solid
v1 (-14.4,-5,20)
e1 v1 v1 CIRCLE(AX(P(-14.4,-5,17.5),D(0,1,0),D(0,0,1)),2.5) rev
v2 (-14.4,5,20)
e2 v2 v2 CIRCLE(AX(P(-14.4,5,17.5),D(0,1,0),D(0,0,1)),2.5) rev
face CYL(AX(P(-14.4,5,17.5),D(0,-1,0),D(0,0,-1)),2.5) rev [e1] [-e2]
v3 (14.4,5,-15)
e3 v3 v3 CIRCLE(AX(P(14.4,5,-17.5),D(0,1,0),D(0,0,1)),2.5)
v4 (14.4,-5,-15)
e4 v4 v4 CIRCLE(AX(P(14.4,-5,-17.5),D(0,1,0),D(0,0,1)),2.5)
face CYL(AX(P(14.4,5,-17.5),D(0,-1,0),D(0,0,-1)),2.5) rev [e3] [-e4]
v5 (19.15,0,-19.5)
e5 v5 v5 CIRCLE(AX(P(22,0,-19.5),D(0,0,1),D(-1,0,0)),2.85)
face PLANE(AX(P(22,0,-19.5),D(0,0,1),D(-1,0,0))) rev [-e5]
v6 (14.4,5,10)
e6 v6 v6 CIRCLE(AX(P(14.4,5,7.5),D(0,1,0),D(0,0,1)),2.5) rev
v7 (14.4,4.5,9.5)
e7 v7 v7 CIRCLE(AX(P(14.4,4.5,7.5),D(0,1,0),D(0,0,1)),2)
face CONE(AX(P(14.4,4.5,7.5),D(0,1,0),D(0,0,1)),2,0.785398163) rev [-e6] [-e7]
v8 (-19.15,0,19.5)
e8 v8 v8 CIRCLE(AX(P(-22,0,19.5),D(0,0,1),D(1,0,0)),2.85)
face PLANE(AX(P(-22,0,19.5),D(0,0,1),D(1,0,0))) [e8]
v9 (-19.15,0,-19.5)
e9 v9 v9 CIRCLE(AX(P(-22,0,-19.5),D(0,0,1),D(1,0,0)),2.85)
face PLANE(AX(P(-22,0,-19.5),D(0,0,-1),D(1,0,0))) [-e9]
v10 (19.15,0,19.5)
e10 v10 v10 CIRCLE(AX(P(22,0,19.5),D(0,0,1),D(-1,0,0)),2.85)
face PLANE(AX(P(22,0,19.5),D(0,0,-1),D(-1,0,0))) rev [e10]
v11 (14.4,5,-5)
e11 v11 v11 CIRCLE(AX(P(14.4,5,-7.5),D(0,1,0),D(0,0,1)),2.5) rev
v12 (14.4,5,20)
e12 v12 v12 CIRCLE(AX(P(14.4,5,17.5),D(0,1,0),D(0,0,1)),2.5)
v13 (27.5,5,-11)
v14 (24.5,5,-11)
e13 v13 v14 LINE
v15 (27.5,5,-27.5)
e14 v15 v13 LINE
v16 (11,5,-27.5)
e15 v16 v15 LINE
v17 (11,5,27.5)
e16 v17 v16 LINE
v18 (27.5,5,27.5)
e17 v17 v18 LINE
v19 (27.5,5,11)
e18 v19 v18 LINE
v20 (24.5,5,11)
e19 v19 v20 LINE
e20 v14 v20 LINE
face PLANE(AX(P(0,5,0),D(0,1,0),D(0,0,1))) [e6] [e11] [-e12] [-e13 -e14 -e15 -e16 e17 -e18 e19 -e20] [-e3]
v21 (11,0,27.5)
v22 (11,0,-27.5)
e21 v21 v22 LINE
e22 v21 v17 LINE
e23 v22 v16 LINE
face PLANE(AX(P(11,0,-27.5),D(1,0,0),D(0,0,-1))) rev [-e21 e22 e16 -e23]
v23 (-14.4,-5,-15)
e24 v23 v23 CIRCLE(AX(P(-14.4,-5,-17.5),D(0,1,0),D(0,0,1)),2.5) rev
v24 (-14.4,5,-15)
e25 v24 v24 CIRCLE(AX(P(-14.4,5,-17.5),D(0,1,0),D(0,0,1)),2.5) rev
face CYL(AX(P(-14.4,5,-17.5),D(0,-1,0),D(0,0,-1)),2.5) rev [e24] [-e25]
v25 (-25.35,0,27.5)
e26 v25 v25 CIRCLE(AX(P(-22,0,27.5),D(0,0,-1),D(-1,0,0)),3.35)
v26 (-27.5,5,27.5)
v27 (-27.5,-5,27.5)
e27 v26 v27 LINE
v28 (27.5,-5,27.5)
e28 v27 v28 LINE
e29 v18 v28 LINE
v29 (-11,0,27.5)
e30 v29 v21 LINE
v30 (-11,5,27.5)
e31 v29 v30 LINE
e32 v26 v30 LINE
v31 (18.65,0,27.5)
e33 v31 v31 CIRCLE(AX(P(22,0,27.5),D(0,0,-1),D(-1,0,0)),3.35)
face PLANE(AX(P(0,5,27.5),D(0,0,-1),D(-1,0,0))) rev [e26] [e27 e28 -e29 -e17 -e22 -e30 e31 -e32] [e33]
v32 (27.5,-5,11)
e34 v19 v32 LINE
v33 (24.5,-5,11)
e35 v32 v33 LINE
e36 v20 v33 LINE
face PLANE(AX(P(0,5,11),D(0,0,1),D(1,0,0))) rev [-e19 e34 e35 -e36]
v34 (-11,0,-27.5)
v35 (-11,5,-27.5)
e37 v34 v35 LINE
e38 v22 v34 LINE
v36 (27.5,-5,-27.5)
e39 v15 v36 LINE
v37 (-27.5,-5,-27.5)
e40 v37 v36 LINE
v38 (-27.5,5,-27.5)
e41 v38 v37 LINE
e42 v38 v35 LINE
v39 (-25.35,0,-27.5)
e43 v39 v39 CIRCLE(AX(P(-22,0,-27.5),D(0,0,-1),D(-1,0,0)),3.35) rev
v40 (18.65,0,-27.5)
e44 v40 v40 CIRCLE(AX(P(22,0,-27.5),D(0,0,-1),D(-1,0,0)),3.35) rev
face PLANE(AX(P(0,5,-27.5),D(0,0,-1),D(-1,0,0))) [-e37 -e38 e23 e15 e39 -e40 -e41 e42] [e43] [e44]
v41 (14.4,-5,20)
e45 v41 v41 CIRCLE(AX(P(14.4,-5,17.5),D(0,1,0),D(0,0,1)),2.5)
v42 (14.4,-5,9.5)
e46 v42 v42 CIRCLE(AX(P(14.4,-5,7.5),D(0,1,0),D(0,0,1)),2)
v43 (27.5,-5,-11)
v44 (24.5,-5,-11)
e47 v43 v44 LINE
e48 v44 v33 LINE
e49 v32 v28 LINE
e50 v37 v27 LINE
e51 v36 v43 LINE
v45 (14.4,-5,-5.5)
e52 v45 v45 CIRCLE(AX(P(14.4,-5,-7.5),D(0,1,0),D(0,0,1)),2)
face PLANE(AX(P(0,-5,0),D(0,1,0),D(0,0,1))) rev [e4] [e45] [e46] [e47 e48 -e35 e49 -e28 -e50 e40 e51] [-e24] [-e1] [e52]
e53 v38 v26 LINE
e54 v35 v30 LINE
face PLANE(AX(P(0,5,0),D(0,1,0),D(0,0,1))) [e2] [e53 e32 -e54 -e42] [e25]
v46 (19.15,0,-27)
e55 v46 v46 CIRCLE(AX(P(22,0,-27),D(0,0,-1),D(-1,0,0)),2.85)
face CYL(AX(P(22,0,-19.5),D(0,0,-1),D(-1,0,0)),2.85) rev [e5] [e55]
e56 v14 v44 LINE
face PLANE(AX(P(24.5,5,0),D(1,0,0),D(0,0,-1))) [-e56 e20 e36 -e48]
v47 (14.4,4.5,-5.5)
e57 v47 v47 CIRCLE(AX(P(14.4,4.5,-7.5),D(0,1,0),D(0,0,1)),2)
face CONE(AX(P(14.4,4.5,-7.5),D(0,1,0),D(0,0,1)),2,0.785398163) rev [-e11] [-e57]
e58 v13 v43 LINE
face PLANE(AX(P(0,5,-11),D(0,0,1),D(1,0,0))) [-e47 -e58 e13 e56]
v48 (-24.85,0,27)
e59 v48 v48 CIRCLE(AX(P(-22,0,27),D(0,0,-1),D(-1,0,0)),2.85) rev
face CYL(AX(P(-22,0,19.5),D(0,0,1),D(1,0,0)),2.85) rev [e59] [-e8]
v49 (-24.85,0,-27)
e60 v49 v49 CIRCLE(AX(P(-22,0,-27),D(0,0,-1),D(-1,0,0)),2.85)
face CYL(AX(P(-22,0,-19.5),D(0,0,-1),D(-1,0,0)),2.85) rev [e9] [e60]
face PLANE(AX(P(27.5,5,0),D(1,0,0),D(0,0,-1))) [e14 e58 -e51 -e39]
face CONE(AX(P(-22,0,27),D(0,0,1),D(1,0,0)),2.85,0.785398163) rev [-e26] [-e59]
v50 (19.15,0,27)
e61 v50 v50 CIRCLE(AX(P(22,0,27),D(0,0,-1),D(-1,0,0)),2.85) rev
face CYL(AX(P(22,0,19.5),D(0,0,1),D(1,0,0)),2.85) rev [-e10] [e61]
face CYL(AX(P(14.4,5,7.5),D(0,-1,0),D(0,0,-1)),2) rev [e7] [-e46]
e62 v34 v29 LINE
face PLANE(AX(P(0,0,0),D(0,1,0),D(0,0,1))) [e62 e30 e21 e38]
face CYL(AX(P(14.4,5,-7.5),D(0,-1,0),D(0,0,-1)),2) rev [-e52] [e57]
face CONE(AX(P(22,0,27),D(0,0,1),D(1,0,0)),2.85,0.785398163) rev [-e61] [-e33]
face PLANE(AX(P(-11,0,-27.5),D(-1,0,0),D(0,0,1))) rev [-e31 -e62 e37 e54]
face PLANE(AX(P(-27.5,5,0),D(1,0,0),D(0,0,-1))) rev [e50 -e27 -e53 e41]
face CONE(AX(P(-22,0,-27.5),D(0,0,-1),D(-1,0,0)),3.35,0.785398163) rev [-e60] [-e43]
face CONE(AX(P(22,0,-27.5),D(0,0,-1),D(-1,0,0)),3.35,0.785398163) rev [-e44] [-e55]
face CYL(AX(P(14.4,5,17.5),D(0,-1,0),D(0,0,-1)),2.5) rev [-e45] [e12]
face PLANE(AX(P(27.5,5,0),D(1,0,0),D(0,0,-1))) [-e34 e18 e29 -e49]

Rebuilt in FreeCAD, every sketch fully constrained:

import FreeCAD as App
import Part
import Sketcher

V = App.Vector


def edges_at(feature, points):
    """Names of the edges that pass closest to the given points."""
    edges = feature.Shape.Edges
    near = lambda p: min(range(len(edges)), key=lambda i: edges[i].distToShape(Part.Vertex(*p))[0])
    return sorted({f"Edge{near(p) + 1}" for p in points})

doc = App.newDocument("Part")
body = doc.addObject("PartDesign::Body", "Body")

sketch1 = body.newObject("Sketcher::SketchObject", "Sketch")
sketch1.AttachmentSupport = (doc.getObject("XZ_Plane"), [""])
sketch1.MapMode = "FlatFace"
sketch1.addGeometry([
    Part.LineSegment(V(27.5, -27.5, 0), V(-27.5, -27.5, 0)),
    Part.LineSegment(V(-27.5, -27.5, 0), V(-27.5, 27.5, 0)),
    Part.LineSegment(V(-27.5, 27.5, 0), V(27.5, 27.5, 0)),
    Part.LineSegment(V(27.5, 27.5, 0), V(27.5, 11, 0)),
    Part.LineSegment(V(27.5, 11, 0), V(24.5, 11, 0)),
    Part.LineSegment(V(24.5, 11, 0), V(24.5, -11, 0)),
    Part.LineSegment(V(24.5, -11, 0), V(27.5, -11, 0)),
    Part.LineSegment(V(27.5, -11, 0), V(27.5, -27.5, 0)),
    Part.Circle(V(-14.4, 17.5, 0), V(0, 0, 1), 2.5),
    Part.Circle(V(14.4, 17.5, 0), V(0, 0, 1), 2.5),
    Part.Circle(V(14.4, 7.5, 0), V(0, 0, 1), 2),
    Part.Circle(V(-14.4, -17.5, 0), V(0, 0, 1), 2.5),
    Part.Circle(V(14.4, -7.5, 0), V(0, 0, 1), 2),
    Part.Circle(V(14.4, -17.5, 0), V(0, 0, 1), 2.5),
], False)
sketch1.addConstraint([
    Sketcher.Constraint("Coincident", 0, 2, 1, 1),
    Sketcher.Constraint("Coincident", 1, 2, 2, 1),
    Sketcher.Constraint("Coincident", 2, 2, 3, 1),
    Sketcher.Constraint("Coincident", 3, 2, 4, 1),
    Sketcher.Constraint("Coincident", 4, 2, 5, 1),
    Sketcher.Constraint("Coincident", 5, 2, 6, 1),
    Sketcher.Constraint("Coincident", 6, 2, 7, 1),
    Sketcher.Constraint("Coincident", 7, 2, 0, 1),
    Sketcher.Constraint("Horizontal", 0),
    Sketcher.Constraint("Vertical", 1),
    Sketcher.Constraint("Horizontal", 2),
    Sketcher.Constraint("Vertical", 3),
    Sketcher.Constraint("Horizontal", 4),
    Sketcher.Constraint("Vertical", 5),
    Sketcher.Constraint("Horizontal", 6),
    Sketcher.Constraint("Vertical", 7),
    Sketcher.Constraint("Equal", 8, 9),
    Sketcher.Constraint("Equal", 9, 11),
    Sketcher.Constraint("Equal", 10, 12),
    Sketcher.Constraint("Equal", 11, 13),
    Sketcher.Constraint("Symmetric", 9, 3, 11, 3, -1, 1),
    Sketcher.Constraint("Symmetric", 8, 3, 13, 3, -1, 1),
    Sketcher.Constraint("Symmetric", 0, 2, 2, 2, -1, 1),
    Sketcher.Constraint("Symmetric", 8, 3, 9, 3, -2),
    Sketcher.Constraint("Symmetric", 10, 3, 12, 3, -1),
    Sketcher.Constraint("Symmetric", 3, 2, 6, 2, -1),
    Sketcher.Constraint("Vertical", 9, 3, 10, 3),
    Sketcher.Constraint("Equal", 2, 1),
    Sketcher.Constraint("Diameter", 8, 5.0),
    Sketcher.Constraint("Diameter", 10, 4.0),
    Sketcher.Constraint("DistanceX", 0, 2, 0, 1, 55.0),
    Sketcher.Constraint("DistanceX", 4, 2, 4, 1, 3.0),
    Sketcher.Constraint("DistanceY", 5, 2, 5, 1, 22.0),
    Sketcher.Constraint("DistanceY", 10, 3, 9, 3, 10.0),
    Sketcher.Constraint("DistanceY", 11, 3, 8, 3, 35.0),
    Sketcher.Constraint("DistanceX", 8, 3, -1, 1, 14.4),
])
pad1 = body.newObject("PartDesign::Pad", "Pad")
pad1.Profile = sketch1
pad1.Length = 10
pad1.Midplane = True

sketch2 = body.newObject("Sketcher::SketchObject", "Sketch001")
sketch2.AttachmentSupport = (doc.getObject("XY_Plane"), [""])
sketch2.MapMode = "FlatFace"
sketch2.AttachmentOffset = App.Placement(V(0, 0, 27.5), App.Rotation())
sketch2.addGeometry([
    Part.Circle(V(-22, 0, 0), V(0, 0, 1), 2.85),
    Part.Circle(V(22, 0, 0), V(0, 0, 1), 2.85),
], False)
sketch2.addConstraint([
    Sketcher.Constraint("Equal", 0, 1),
    Sketcher.Constraint("Symmetric", 0, 3, 1, 3, -1, 1),
    Sketcher.Constraint("PointOnObject", 0, 3, -1),
    Sketcher.Constraint("Diameter", 0, 5.7),
    Sketcher.Constraint("DistanceX", 0, 3, -1, 1, 22.0),
])
pocket1 = body.newObject("PartDesign::Pocket", "Pocket")
pocket1.Profile = sketch2
pocket1.Length = 8
doc.recompute()

mirrored = body.newObject("PartDesign::Mirrored", "Mirrored")
mirrored.Originals = [pocket1]
mirrored.MirrorPlane = (doc.getObject("XY_Plane"), [""])
body.Tip = mirrored
doc.recompute()

chamfer = body.newObject("PartDesign::Chamfer", "Chamfer")
chamfer.Base = (mirrored, edges_at(mirrored, [
    (14.4, 5, 5.5),
    (14.4, 5, -9.5),
    (-24.85, 0, 27.5),
    (24.85, 0, 27.5),
    (-24.85, 0, -27.5),
    (24.85, 0, -27.5),
]))
chamfer.Size = 0.5

sketch3 = body.newObject("Sketcher::SketchObject", "Sketch002")
sketch3.AttachmentSupport = (doc.getObject("XZ_Plane"), [""])
sketch3.MapMode = "FlatFace"
sketch3.AttachmentOffset = App.Placement(V(0, 0, -5), App.Rotation())
sketch3.addGeometry([
    Part.LineSegment(V(-11, -27.5, 0), V(-11, 27.5, 0)),
    Part.LineSegment(V(-11, 27.5, 0), V(11, 27.5, 0)),
    Part.LineSegment(V(11, 27.5, 0), V(11, -27.5, 0)),
    Part.LineSegment(V(11, -27.5, 0), V(-11, -27.5, 0)),
], False)
sketch3.addConstraint([
    Sketcher.Constraint("Coincident", 0, 2, 1, 1),
    Sketcher.Constraint("Coincident", 1, 2, 2, 1),
    Sketcher.Constraint("Coincident", 2, 2, 3, 1),
    Sketcher.Constraint("Coincident", 3, 2, 0, 1),
    Sketcher.Constraint("Vertical", 0),
    Sketcher.Constraint("Horizontal", 1),
    Sketcher.Constraint("Vertical", 2),
    Sketcher.Constraint("Horizontal", 3),
    Sketcher.Constraint("Symmetric", 0, 2, 2, 2, -1, 1),
    Sketcher.Constraint("DistanceX", 1, 1, 1, 2, 22.0),
    Sketcher.Constraint("DistanceY", 0, 1, 0, 2, 55.0),
])
pocket2 = body.newObject("PartDesign::Pocket", "Pocket001")
pocket2.Profile = sketch3
pocket2.Length = 5
pocket2.Reversed = True

doc.recompute()
